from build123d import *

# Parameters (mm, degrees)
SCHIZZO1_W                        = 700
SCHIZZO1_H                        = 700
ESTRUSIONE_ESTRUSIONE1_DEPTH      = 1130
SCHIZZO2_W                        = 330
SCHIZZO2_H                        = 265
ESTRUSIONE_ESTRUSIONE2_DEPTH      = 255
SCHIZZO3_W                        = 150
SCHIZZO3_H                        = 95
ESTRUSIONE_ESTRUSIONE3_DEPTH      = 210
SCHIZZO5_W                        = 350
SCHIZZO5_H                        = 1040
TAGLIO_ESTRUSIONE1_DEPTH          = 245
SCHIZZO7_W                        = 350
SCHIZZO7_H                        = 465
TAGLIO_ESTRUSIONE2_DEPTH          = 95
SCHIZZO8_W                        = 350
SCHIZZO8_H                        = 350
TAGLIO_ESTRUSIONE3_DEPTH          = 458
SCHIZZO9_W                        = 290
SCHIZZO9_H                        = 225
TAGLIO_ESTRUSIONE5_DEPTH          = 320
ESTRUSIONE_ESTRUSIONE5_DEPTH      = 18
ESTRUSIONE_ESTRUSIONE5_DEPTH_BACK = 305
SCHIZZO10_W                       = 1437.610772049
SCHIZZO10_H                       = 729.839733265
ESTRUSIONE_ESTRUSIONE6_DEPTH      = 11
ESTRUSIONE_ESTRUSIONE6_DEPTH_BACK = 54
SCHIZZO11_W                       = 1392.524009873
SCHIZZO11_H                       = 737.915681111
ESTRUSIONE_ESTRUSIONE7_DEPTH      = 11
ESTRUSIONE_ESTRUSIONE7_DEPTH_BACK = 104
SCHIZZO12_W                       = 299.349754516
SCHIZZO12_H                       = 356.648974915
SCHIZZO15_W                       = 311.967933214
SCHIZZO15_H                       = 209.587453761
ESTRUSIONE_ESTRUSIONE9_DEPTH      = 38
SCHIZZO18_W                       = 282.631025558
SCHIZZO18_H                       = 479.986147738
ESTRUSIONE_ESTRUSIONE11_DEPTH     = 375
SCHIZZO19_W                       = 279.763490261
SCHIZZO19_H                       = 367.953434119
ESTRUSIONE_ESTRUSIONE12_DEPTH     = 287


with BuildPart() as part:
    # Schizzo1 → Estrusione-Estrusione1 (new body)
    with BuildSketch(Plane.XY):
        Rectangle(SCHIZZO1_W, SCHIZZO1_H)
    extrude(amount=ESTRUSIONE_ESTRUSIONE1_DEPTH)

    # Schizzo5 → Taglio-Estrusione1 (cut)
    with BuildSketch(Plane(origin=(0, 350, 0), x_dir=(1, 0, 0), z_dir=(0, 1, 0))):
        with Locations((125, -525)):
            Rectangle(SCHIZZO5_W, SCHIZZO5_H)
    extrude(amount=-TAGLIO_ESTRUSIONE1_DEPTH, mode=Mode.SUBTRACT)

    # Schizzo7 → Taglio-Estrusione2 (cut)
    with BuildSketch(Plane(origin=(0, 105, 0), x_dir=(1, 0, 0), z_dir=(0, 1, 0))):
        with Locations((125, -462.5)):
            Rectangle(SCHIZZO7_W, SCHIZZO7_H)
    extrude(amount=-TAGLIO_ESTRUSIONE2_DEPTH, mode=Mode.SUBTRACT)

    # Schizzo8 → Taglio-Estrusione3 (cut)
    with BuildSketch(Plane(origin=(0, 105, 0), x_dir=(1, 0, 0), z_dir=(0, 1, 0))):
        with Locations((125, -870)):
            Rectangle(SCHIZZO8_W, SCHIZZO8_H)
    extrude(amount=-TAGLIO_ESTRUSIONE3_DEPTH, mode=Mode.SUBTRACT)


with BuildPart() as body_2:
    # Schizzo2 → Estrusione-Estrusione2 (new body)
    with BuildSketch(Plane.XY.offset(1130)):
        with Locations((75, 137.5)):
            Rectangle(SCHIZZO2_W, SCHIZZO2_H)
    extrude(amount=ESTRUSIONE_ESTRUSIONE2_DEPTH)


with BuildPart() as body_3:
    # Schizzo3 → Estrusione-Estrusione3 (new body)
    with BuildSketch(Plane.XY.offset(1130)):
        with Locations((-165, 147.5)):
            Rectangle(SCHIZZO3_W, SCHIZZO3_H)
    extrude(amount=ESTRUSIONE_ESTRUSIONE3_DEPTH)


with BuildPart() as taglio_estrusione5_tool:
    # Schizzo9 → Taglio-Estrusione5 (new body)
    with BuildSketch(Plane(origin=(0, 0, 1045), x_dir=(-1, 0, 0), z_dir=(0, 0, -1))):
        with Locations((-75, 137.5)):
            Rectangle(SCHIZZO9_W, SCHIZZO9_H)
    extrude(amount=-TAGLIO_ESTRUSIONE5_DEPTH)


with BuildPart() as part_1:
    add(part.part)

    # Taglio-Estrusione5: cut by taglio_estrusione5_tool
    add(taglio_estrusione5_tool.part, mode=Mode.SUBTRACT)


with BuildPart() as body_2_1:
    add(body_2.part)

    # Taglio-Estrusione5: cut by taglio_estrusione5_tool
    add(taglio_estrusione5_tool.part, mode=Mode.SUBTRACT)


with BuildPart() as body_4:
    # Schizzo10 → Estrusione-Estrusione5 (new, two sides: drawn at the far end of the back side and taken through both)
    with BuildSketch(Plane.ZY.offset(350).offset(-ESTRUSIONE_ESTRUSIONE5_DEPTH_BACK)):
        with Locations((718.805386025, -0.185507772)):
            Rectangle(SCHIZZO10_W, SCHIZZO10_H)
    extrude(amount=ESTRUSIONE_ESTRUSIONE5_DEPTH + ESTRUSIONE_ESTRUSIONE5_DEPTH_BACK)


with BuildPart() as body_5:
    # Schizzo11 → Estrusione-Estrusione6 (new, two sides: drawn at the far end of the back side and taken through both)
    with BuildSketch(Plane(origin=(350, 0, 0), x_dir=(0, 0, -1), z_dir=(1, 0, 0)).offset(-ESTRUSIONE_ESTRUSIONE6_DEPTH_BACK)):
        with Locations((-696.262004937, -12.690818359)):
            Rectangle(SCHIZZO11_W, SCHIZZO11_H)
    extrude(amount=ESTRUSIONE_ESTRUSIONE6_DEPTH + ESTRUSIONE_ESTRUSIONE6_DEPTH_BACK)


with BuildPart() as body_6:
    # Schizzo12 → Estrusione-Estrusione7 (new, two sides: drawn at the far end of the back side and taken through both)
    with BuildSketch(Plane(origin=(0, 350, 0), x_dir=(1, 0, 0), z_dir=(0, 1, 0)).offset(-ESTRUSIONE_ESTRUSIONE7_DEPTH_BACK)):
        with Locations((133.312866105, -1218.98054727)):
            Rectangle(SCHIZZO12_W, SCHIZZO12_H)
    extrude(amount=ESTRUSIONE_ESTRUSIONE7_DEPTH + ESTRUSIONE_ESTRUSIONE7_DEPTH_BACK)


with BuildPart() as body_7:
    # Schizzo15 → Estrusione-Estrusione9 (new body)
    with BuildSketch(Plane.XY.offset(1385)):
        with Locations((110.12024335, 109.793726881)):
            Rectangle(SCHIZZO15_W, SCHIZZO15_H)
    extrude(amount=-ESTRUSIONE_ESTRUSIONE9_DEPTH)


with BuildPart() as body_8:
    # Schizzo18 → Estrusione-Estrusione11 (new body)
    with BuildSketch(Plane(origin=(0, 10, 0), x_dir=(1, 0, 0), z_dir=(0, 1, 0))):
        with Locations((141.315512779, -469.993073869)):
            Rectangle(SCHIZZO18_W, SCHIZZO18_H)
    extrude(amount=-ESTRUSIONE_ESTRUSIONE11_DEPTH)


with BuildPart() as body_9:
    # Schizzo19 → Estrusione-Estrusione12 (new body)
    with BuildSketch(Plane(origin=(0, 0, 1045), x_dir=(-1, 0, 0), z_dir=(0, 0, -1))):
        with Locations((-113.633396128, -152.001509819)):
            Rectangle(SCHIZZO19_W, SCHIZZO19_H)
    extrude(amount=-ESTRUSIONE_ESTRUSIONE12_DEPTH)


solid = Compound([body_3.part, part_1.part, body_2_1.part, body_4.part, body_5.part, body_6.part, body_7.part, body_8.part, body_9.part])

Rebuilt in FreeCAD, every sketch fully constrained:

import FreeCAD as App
import Part
import Sketcher

V = App.Vector
Q = App.Units.Quantity

doc = App.newDocument("Part")
body = doc.addObject("PartDesign::Body", "Body")

# Sketch on XY plane
sketch1 = doc.addObject("Sketcher::SketchObject", "Sketch")
body.addObject(sketch1)
sketch1.AttachmentSupport = (doc.XY_Plane, [""])
sketch1.MapMode = "FlatFace"
sketch1.addGeometry([
    Part.LineSegment(V(-350, 350, 0), V(-350, -350, 0)),
    Part.LineSegment(V(-350, -350, 0), V(350, -350, 0)),
    Part.LineSegment(V(350, -350, 0), V(350, 350, 0)),
    Part.LineSegment(V(350, 350, 0), V(-350, 350, 0)),
], False)
sketch1.addConstraint([
    Sketcher.Constraint("Coincident", 0, 2, 1, 1),
    Sketcher.Constraint("Coincident", 1, 2, 2, 1),
    Sketcher.Constraint("Coincident", 2, 2, 3, 1),
    Sketcher.Constraint("Coincident", 3, 2, 0, 1),
    Sketcher.Constraint("Vertical", 0),
    Sketcher.Constraint("Horizontal", 1),
    Sketcher.Constraint("Vertical", 2),
    Sketcher.Constraint("Horizontal", 3),
    Sketcher.Constraint("Symmetric", 0, 2, 2, 2, -1, 1),
    Sketcher.Constraint("Equal", 3, 0),
    Sketcher.Constraint("DistanceX", 1, 1, 1, 2, Q("700 mm")),
])
pad1 = doc.addObject("PartDesign::Pad", "Pad")
body.addObject(pad1)
pad1.Profile = sketch1
pad1.Length = 1130

# Sketch on XZ plane
sketch2 = doc.addObject("Sketcher::SketchObject", "Sketch001")
body.addObject(sketch2)
sketch2.AttachmentSupport = (doc.XZ_Plane, [""])
sketch2.MapMode = "FlatFace"
sketch2.AttachmentOffset = App.Placement(V(0, 0, -350), App.Rotation())
sketch2.addGeometry([
    Part.LineSegment(V(-50, 5, 0), V(-50, 1045, 0)),
    Part.LineSegment(V(-50, 1045, 0), V(300, 1045, 0)),
    Part.LineSegment(V(300, 1045, 0), V(300, 5, 0)),
    Part.LineSegment(V(300, 5, 0), V(-50, 5, 0)),
], False)
sketch2.addConstraint([
    Sketcher.Constraint("Coincident", 0, 2, 1, 1),
    Sketcher.Constraint("Coincident", 1, 2, 2, 1),
    Sketcher.Constraint("Coincident", 2, 2, 3, 1),
    Sketcher.Constraint("Coincident", 3, 2, 0, 1),
    Sketcher.Constraint("Vertical", 0),
    Sketcher.Constraint("Horizontal", 1),
    Sketcher.Constraint("Vertical", 2),
    Sketcher.Constraint("Horizontal", 3),
    Sketcher.Constraint("DistanceX", 1, 1, 1, 2, Q("350 mm")),
    Sketcher.Constraint("DistanceY", 0, 1, 0, 2, Q("1040 mm")),
    Sketcher.Constraint("DistanceX", 0, 2, -1, 1, Q("50 mm")),
    Sketcher.Constraint("DistanceY", -1, 1, 0, 2, Q("1045 mm")),
])
pocket1 = doc.addObject("PartDesign::Pocket", "Pocket")
body.addObject(pocket1)
pocket1.Profile = sketch2
pocket1.Length = 245
pocket1.Reversed = True

# Sketch on XZ plane
sketch3 = doc.addObject("Sketcher::SketchObject", "Sketch002")
body.addObject(sketch3)
sketch3.AttachmentSupport = (doc.XZ_Plane, [""])
sketch3.MapMode = "FlatFace"
sketch3.AttachmentOffset = App.Placement(V(0, 0, -105), App.Rotation())
sketch3.addGeometry([
    Part.LineSegment(V(-50, 230, 0), V(-50, 695, 0)),
    Part.LineSegment(V(-50, 695, 0), V(300, 695, 0)),
    Part.LineSegment(V(300, 695, 0), V(300, 230, 0)),
    Part.LineSegment(V(300, 230, 0), V(-50, 230, 0)),
], False)
sketch3.addConstraint([
    Sketcher.Constraint("Coincident", 0, 2, 1, 1),
    Sketcher.Constraint("Coincident", 1, 2, 2, 1),
    Sketcher.Constraint("Coincident", 2, 2, 3, 1),
    Sketcher.Constraint("Coincident", 3, 2, 0, 1),
    Sketcher.Constraint("Vertical", 0),
    Sketcher.Constraint("Horizontal", 1),
    Sketcher.Constraint("Vertical", 2),
    Sketcher.Constraint("Horizontal", 3),
    Sketcher.Constraint("DistanceX", 1, 1, 1, 2, Q("350 mm")),
    Sketcher.Constraint("DistanceY", 0, 1, 0, 2, Q("465 mm")),
    Sketcher.Constraint("DistanceX", 0, 2, -1, 1, Q("50 mm")),
    Sketcher.Constraint("DistanceY", -1, 1, 0, 2, Q("695 mm")),
])
pocket2 = doc.addObject("PartDesign::Pocket", "Pocket001")
body.addObject(pocket2)
pocket2.Profile = sketch3
pocket2.Length = 95
pocket2.Reversed = True

# Sketch on XZ plane
sketch4 = doc.addObject("Sketcher::SketchObject", "Sketch003")
body.addObject(sketch4)
sketch4.AttachmentSupport = (doc.XZ_Plane, [""])
sketch4.MapMode = "FlatFace"
sketch4.AttachmentOffset = App.Placement(V(0, 0, -105), App.Rotation())
sketch4.addGeometry([
    Part.LineSegment(V(-50, 695, 0), V(-50, 1045, 0)),
    Part.LineSegment(V(-50, 1045, 0), V(300, 1045, 0)),
    Part.LineSegment(V(300, 1045, 0), V(300, 695, 0)),
    Part.LineSegment(V(300, 695, 0), V(-50, 695, 0)),
], False)
sketch4.addConstraint([
    Sketcher.Constraint("Coincident", 0, 2, 1, 1),
    Sketcher.Constraint("Coincident", 1, 2, 2, 1),
    Sketcher.Constraint("Coincident", 2, 2, 3, 1),
    Sketcher.Constraint("Coincident", 3, 2, 0, 1),
    Sketcher.Constraint("Vertical", 0),
    Sketcher.Constraint("Horizontal", 1),
    Sketcher.Constraint("Vertical", 2),
    Sketcher.Constraint("Horizontal", 3),
    Sketcher.Constraint("Equal", 3, 0),
    Sketcher.Constraint("DistanceX", 1, 1, 1, 2, Q("350 mm")),
    Sketcher.Constraint("DistanceX", 0, 2, -1, 1, Q("50 mm")),
    Sketcher.Constraint("DistanceY", -1, 1, 0, 2, Q("1045 mm")),
])
pocket3 = doc.addObject("PartDesign::Pocket", "Pocket002")
body.addObject(pocket3)
pocket3.Profile = sketch4
pocket3.Length = 458
pocket3.Reversed = True
body2 = doc.addObject("PartDesign::Body", "Body001")

# Sketch on XY plane
sketch5 = doc.addObject("Sketcher::SketchObject", "Sketch004")
body2.addObject(sketch5)
sketch5.AttachmentSupport = (doc.getObject("XY_Plane001"), [""])
sketch5.MapMode = "FlatFace"
sketch5.AttachmentOffset = App.Placement(V(0, 0, 1130), App.Rotation())
sketch5.addGeometry([
    Part.LineSegment(V(-90, 270, 0), V(-90, 5, 0)),
    Part.LineSegment(V(-90, 5, 0), V(240, 5, 0)),
    Part.LineSegment(V(240, 5, 0), V(240, 270, 0)),
    Part.LineSegment(V(240, 270, 0), V(-90, 270, 0)),
], False)
sketch5.addConstraint([
    Sketcher.Constraint("Coincident", 0, 2, 1, 1),
    Sketcher.Constraint("Coincident", 1, 2, 2, 1),
    Sketcher.Constraint("Coincident", 2, 2, 3, 1),
    Sketcher.Constraint("Coincident", 3, 2, 0, 1),
    Sketcher.Constraint("Vertical", 0),
    Sketcher.Constraint("Horizontal", 1),
    Sketcher.Constraint("Vertical", 2),
    Sketcher.Constraint("Horizontal", 3),
    Sketcher.Constraint("DistanceX", 1, 1, 1, 2, Q("330 mm")),
    Sketcher.Constraint("DistanceY", 0, 2, 0, 1, Q("265 mm")),
    Sketcher.Constraint("DistanceX", 0, 2, -1, 1, Q("90 mm")),
    Sketcher.Constraint("DistanceY", -1, 1, 0, 2, Q("5 mm")),
])
pad2 = doc.addObject("PartDesign::Pad", "Pad001")
body2.addObject(pad2)
pad2.Profile = sketch5
pad2.Length = 255
body3 = doc.addObject("PartDesign::Body", "Body002")

# Sketch on XY plane
sketch6 = doc.addObject("Sketcher::SketchObject", "Sketch005")
body3.addObject(sketch6)
sketch6.AttachmentSupport = (doc.getObject("XY_Plane002"), [""])
sketch6.MapMode = "FlatFace"
sketch6.AttachmentOffset = App.Placement(V(0, 0, 1130), App.Rotation())
sketch6.addGeometry([
    Part.LineSegment(V(-240, 195, 0), V(-240, 100, 0)),
    Part.LineSegment(V(-240, 100, 0), V(-90, 100, 0)),
    Part.LineSegment(V(-90, 100, 0), V(-90, 195, 0)),
    Part.LineSegment(V(-90, 195, 0), V(-240, 195, 0)),
], False)
sketch6.addConstraint([
    Sketcher.Constraint("Coincident", 0, 2, 1, 1),
    Sketcher.Constraint("Coincident", 1, 2, 2, 1),
    Sketcher.Constraint("Coincident", 2, 2, 3, 1),
    Sketcher.Constraint("Coincident", 3, 2, 0, 1),
    Sketcher.Constraint("Vertical", 0),
    Sketcher.Constraint("Horizontal", 1),
    Sketcher.Constraint("Vertical", 2),
    Sketcher.Constraint("Horizontal", 3),
    Sketcher.Constraint("DistanceX", 1, 1, 1, 2, Q("150 mm")),
    Sketcher.Constraint("DistanceY", 0, 2, 0, 1, Q("95 mm")),
    Sketcher.Constraint("DistanceX", 0, 2, -1, 1, Q("240 mm")),
    Sketcher.Constraint("DistanceY", -1, 1, 0, 2, Q("100 mm")),
])
pad3 = doc.addObject("PartDesign::Pad", "Pad002")
body3.addObject(pad3)
pad3.Profile = sketch6
pad3.Length = 210
body4 = doc.addObject("PartDesign::Body", "Body003")

# Sketch on XY plane
sketch7 = doc.addObject("Sketcher::SketchObject", "Sketch006")
body4.addObject(sketch7)
sketch7.AttachmentSupport = (doc.getObject("XY_Plane003"), [""])
sketch7.MapMode = "FlatFace"
sketch7.AttachmentOffset = App.Placement(V(0, 0, 1045), App.Rotation())
sketch7.addGeometry([
    Part.LineSegment(V(220, 250, 0), V(220, 25, 0)),
    Part.LineSegment(V(220, 25, 0), V(-70, 25, 0)),
    Part.LineSegment(V(-70, 25, 0), V(-70, 250, 0)),
    Part.LineSegment(V(-70, 250, 0), V(220, 250, 0)),
], False)
sketch7.addConstraint([
    Sketcher.Constraint("Coincident", 0, 2, 1, 1),
    Sketcher.Constraint("Coincident", 1, 2, 2, 1),
    Sketcher.Constraint("Coincident", 2, 2, 3, 1),
    Sketcher.Constraint("Coincident", 3, 2, 0, 1),
    Sketcher.Constraint("Vertical", 0),
    Sketcher.Constraint("Horizontal", 1),
    Sketcher.Constraint("Vertical", 2),
    Sketcher.Constraint("Horizontal", 3),
    Sketcher.Constraint("DistanceX", 1, 2, 1, 1, Q("290 mm")),
    Sketcher.Constraint("DistanceY", 0, 2, 0, 1, Q("225 mm")),
    Sketcher.Constraint("DistanceX", -1, 1, 0, 2, Q("220 mm")),
    Sketcher.Constraint("DistanceY", -1, 1, 0, 2, Q("25 mm")),
])
pad4 = doc.addObject("PartDesign::Pad", "Pad003")
body4.addObject(pad4)
pad4.Profile = sketch7
pad4.Length = 320
doc.recompute()

body5 = doc.addObject("PartDesign::Body", "Body004")
body5.BaseFeature = body4
boolean = doc.addObject("PartDesign::Boolean", "Boolean")
body.addObject(boolean)
boolean.Type = "Cut"
boolean.addObjects([body5])
doc.recompute()

boolean2 = doc.addObject("PartDesign::Boolean", "Boolean001")
body2.addObject(boolean2)
boolean2.Type = "Cut"
boolean2.addObjects([body4])
body6 = doc.addObject("PartDesign::Body", "Body005")

# Sketch on YZ plane
sketch8 = doc.addObject("Sketcher::SketchObject", "Sketch007")
body6.addObject(sketch8)
sketch8.AttachmentSupport = (doc.getObject("YZ_Plane005"), [""])
sketch8.MapMode = "FlatFace"
sketch8.AttachmentOffset = App.Placement(V(0, 0, -350), App.Rotation())
sketch8.addGeometry([
    Part.LineSegment(V(364.734359, 0, 0), V(-365.105374, 0, 0)),
    Part.LineSegment(V(-365.105374, 0, 0), V(-365.105374, 1437.610772, 0)),
    Part.LineSegment(V(-365.105374, 1437.610772, 0), V(364.734359, 1437.610772, 0)),
    Part.LineSegment(V(364.734359, 1437.610772, 0), V(364.734359, 0, 0)),
], False)
sketch8.addConstraint([
    Sketcher.Constraint("Coincident", 0, 2, 1, 1),
    Sketcher.Constraint("Coincident", 1, 2, 2, 1),
    Sketcher.Constraint("Coincident", 2, 2, 3, 1),
    Sketcher.Constraint("Coincident", 3, 2, 0, 1),
    Sketcher.Constraint("Horizontal", 0),
    Sketcher.Constraint("Vertical", 1),
    Sketcher.Constraint("Horizontal", 2),
    Sketcher.Constraint("Vertical", 3),
    Sketcher.Constraint("PointOnObject", 0, 2, -1),
    Sketcher.Constraint("DistanceX", 0, 2, 0, 1, Q("729.839733 mm")),
    Sketcher.Constraint("DistanceY", 1, 1, 1, 2, Q("1437.610772 mm")),
    Sketcher.Constraint("DistanceX", -1, 1, 2, 2, Q("364.734359 mm")),
])
pad5 = doc.addObject("PartDesign::Pad", "Pad004")
body6.addObject(pad5)
pad5.Profile = sketch8
pad5.Type = "TwoLengths"
pad5.Length = 18
pad5.Length2 = 305
pad5.Reversed = True
body7 = doc.addObject("PartDesign::Body", "Body006")

# Sketch on YZ plane
sketch9 = doc.addObject("Sketcher::SketchObject", "Sketch008")
body7.addObject(sketch9)
sketch9.AttachmentSupport = (doc.getObject("YZ_Plane006"), [""])
sketch9.MapMode = "FlatFace"
sketch9.AttachmentOffset = App.Placement(V(0, 0, 350), App.Rotation())
sketch9.addGeometry([
    Part.LineSegment(V(356.267022, 1392.52401, 0), V(-381.648659, 1392.52401, 0)),
    Part.LineSegment(V(-381.648659, 1392.52401, 0), V(-381.648659, 0, 0)),
    Part.LineSegment(V(-381.648659, 0, 0), V(356.267022, 0, 0)),
    Part.LineSegment(V(356.267022, 0, 0), V(356.267022, 1392.52401, 0)),
], False)
sketch9.addConstraint([
    Sketcher.Constraint("Coincident", 0, 2, 1, 1),
    Sketcher.Constraint("Coincident", 1, 2, 2, 1),
    Sketcher.Constraint("Coincident", 2, 2, 3, 1),
    Sketcher.Constraint("Coincident", 3, 2, 0, 1),
    Sketcher.Constraint("Horizontal", 0),
    Sketcher.Constraint("Vertical", 1),
    Sketcher.Constraint("Horizontal", 2),
    Sketcher.Constraint("Vertical", 3),
    Sketcher.Constraint("PointOnObject", 1, 2, -1),
    Sketcher.Constraint("DistanceX", 0, 2, 0, 1, Q("737.915681 mm")),
    Sketcher.Constraint("DistanceY", 1, 2, 1, 1, Q("1392.52401 mm")),
    Sketcher.Constraint("DistanceX", 0, 2, -1, 1, Q("381.648659 mm")),
])
pad6 = doc.addObject("PartDesign::Pad", "Pad005")
body7.addObject(pad6)
pad6.Profile = sketch9
pad6.Type = "TwoLengths"
pad6.Length = 11
pad6.Length2 = 54
body8 = doc.addObject("PartDesign::Body", "Body007")

# Sketch on XZ plane
sketch10 = doc.addObject("Sketcher::SketchObject", "Sketch009")
body8.addObject(sketch10)
sketch10.AttachmentSupport = (doc.getObject("XZ_Plane007"), [""])
sketch10.MapMode = "FlatFace"
sketch10.AttachmentOffset = App.Placement(V(0, 0, -350), App.Rotation())
sketch10.addGeometry([
    Part.LineSegment(V(-16.362011, 1040.65606, 0), V(-16.362011, 1397.305035, 0)),
    Part.LineSegment(V(-16.362011, 1397.305035, 0), V(282.987743, 1397.305035, 0)),
    Part.LineSegment(V(282.987743, 1397.305035, 0), V(282.987743, 1040.65606, 0)),
    Part.LineSegment(V(282.987743, 1040.65606, 0), V(-16.362011, 1040.65606, 0)),
], False)
sketch10.addConstraint([
    Sketcher.Constraint("Coincident", 0, 2, 1, 1),
    Sketcher.Constraint("Coincident", 1, 2, 2, 1),
    Sketcher.Constraint("Coincident", 2, 2, 3, 1),
    Sketcher.Constraint("Coincident", 3, 2, 0, 1),
    Sketcher.Constraint("Vertical", 0),
    Sketcher.Constraint("Horizontal", 1),
    Sketcher.Constraint("Vertical", 2),
    Sketcher.Constraint("Horizontal", 3),
    Sketcher.Constraint("DistanceX", 1, 1, 1, 2, Q("299.349755 mm")),
    Sketcher.Constraint("DistanceY", 0, 1, 0, 2, Q("356.648975 mm")),
    Sketcher.Constraint("DistanceX", 0, 2, -1, 1, Q("16.362011 mm")),
    Sketcher.Constraint("DistanceY", -1, 1, 2, 2, Q("1040.65606 mm")),
])
pad7 = doc.addObject("PartDesign::Pad", "Pad006")
body8.addObject(pad7)
pad7.Profile = sketch10
pad7.Type = "TwoLengths"
pad7.Length = 11
pad7.Length2 = 104
pad7.Reversed = True
body9 = doc.addObject("PartDesign::Body", "Body008")

# Sketch on XY plane
sketch11 = doc.addObject("Sketcher::SketchObject", "Sketch010")
body9.addObject(sketch11)
sketch11.AttachmentSupport = (doc.getObject("XY_Plane008"), [""])
sketch11.MapMode = "FlatFace"
sketch11.AttachmentOffset = App.Placement(V(0, 0, 1385), App.Rotation())
sketch11.addGeometry([
    Part.LineSegment(V(-45.863723, 214.587454, 0), V(-45.863723, 5, 0)),
    Part.LineSegment(V(-45.863723, 5, 0), V(266.10421, 5, 0)),
    Part.LineSegment(V(266.10421, 5, 0), V(266.10421, 214.587454, 0)),
    Part.LineSegment(V(266.10421, 214.587454, 0), V(-45.863723, 214.587454, 0)),
], False)
sketch11.addConstraint([
    Sketcher.Constraint("Coincident", 0, 2, 1, 1),
    Sketcher.Constraint("Coincident", 1, 2, 2, 1),
    Sketcher.Constraint("Coincident", 2, 2, 3, 1),
    Sketcher.Constraint("Coincident", 3, 2, 0, 1),
    Sketcher.Constraint("Vertical", 0),
    Sketcher.Constraint("Horizontal", 1),
    Sketcher.Constraint("Vertical", 2),
    Sketcher.Constraint("Horizontal", 3),
    Sketcher.Constraint("DistanceY", -1, 1, 0, 2, Q("5 mm")),
    Sketcher.Constraint("DistanceX", 1, 1, 1, 2, Q("311.967933 mm")),
    Sketcher.Constraint("DistanceY", 0, 2, 0, 1, Q("209.587454 mm")),
    Sketcher.Constraint("DistanceX", -1, 1, 1, 2, Q("266.10421 mm")),
])
pad8 = doc.addObject("PartDesign::Pad", "Pad007")
body9.addObject(pad8)
pad8.Profile = sketch11
pad8.Length = 38
pad8.Reversed = True
body10 = doc.addObject("PartDesign::Body", "Body009")

# Sketch on XZ plane
sketch12 = doc.addObject("Sketcher::SketchObject", "Sketch011")
body10.addObject(sketch12)
sketch12.AttachmentSupport = (doc.getObject("XZ_Plane009"), [""])
sketch12.MapMode = "FlatFace"
sketch12.AttachmentOffset = App.Placement(V(0, 0, -10), App.Rotation())
sketch12.addGeometry([
    Part.LineSegment(V(0, 230, 0), V(0, 709.986148, 0)),
    Part.LineSegment(V(0, 709.986148, 0), V(282.631026, 709.986148, 0)),
    Part.LineSegment(V(282.631026, 709.986148, 0), V(282.631026, 230, 0)),
    Part.LineSegment(V(282.631026, 230, 0), V(0, 230, 0)),
], False)
sketch12.addConstraint([
    Sketcher.Constraint("Coincident", 0, 2, 1, 1),
    Sketcher.Constraint("Coincident", 1, 2, 2, 1),
    Sketcher.Constraint("Coincident", 2, 2, 3, 1),
    Sketcher.Constraint("Coincident", 3, 2, 0, 1),
    Sketcher.Constraint("Vertical", 0),
    Sketcher.Constraint("Horizontal", 1),
    Sketcher.Constraint("Vertical", 2),
    Sketcher.Constraint("Horizontal", 3),
    Sketcher.Constraint("PointOnObject", 0, 2, -2),
    Sketcher.Constraint("DistanceY", -1, 1, 2, 2, Q("230 mm")),
    Sketcher.Constraint("DistanceX", 1, 1, 1, 2, Q("282.631026 mm")),
    Sketcher.Constraint("DistanceY", 0, 1, 0, 2, Q("479.986148 mm")),
])
pad9 = doc.addObject("PartDesign::Pad", "Pad008")
body10.addObject(pad9)
pad9.Profile = sketch12
pad9.Length = 375
body11 = doc.addObject("PartDesign::Body", "Body010")

# Sketch on XY plane
sketch13 = doc.addObject("Sketcher::SketchObject", "Sketch012")
body11.addObject(sketch13)
sketch13.AttachmentSupport = (doc.getObject("XY_Plane010"), [""])
sketch13.MapMode = "FlatFace"
sketch13.AttachmentOffset = App.Placement(V(0, 0, 1045), App.Rotation())
sketch13.addGeometry([
    Part.LineSegment(V(253.515141, 31.975207, 0), V(253.515141, -335.978227, 0)),
    Part.LineSegment(V(253.515141, -335.978227, 0), V(-26.248349, -335.978227, 0)),
    Part.LineSegment(V(-26.248349, -335.978227, 0), V(-26.248349, 31.975207, 0)),
    Part.LineSegment(V(-26.248349, 31.975207, 0), V(253.515141, 31.975207, 0)),
], False)
sketch13.addConstraint([
    Sketcher.Constraint("Coincident", 0, 2, 1, 1),
    Sketcher.Constraint("Coincident", 1, 2, 2, 1),
    Sketcher.Constraint("Coincident", 2, 2, 3, 1),
    Sketcher.Constraint("Coincident", 3, 2, 0, 1),
    Sketcher.Constraint("Vertical", 0),
    Sketcher.Constraint("Horizontal", 1),
    Sketcher.Constraint("Vertical", 2),
    Sketcher.Constraint("Horizontal", 3),
    Sketcher.Constraint("DistanceX", 1, 2, 1, 1, Q("279.76349 mm")),
    Sketcher.Constraint("DistanceY", 0, 2, 0, 1, Q("367.953434 mm")),
    Sketcher.Constraint("DistanceX", -1, 1, 0, 2, Q("253.515141 mm")),
    Sketcher.Constraint("DistanceY", 0, 2, -1, 1, Q("335.978227 mm")),
])
pad10 = doc.addObject("PartDesign::Pad", "Pad009")
body11.addObject(pad10)
pad10.Profile = sketch13
pad10.Length = 287

doc.recompute()
